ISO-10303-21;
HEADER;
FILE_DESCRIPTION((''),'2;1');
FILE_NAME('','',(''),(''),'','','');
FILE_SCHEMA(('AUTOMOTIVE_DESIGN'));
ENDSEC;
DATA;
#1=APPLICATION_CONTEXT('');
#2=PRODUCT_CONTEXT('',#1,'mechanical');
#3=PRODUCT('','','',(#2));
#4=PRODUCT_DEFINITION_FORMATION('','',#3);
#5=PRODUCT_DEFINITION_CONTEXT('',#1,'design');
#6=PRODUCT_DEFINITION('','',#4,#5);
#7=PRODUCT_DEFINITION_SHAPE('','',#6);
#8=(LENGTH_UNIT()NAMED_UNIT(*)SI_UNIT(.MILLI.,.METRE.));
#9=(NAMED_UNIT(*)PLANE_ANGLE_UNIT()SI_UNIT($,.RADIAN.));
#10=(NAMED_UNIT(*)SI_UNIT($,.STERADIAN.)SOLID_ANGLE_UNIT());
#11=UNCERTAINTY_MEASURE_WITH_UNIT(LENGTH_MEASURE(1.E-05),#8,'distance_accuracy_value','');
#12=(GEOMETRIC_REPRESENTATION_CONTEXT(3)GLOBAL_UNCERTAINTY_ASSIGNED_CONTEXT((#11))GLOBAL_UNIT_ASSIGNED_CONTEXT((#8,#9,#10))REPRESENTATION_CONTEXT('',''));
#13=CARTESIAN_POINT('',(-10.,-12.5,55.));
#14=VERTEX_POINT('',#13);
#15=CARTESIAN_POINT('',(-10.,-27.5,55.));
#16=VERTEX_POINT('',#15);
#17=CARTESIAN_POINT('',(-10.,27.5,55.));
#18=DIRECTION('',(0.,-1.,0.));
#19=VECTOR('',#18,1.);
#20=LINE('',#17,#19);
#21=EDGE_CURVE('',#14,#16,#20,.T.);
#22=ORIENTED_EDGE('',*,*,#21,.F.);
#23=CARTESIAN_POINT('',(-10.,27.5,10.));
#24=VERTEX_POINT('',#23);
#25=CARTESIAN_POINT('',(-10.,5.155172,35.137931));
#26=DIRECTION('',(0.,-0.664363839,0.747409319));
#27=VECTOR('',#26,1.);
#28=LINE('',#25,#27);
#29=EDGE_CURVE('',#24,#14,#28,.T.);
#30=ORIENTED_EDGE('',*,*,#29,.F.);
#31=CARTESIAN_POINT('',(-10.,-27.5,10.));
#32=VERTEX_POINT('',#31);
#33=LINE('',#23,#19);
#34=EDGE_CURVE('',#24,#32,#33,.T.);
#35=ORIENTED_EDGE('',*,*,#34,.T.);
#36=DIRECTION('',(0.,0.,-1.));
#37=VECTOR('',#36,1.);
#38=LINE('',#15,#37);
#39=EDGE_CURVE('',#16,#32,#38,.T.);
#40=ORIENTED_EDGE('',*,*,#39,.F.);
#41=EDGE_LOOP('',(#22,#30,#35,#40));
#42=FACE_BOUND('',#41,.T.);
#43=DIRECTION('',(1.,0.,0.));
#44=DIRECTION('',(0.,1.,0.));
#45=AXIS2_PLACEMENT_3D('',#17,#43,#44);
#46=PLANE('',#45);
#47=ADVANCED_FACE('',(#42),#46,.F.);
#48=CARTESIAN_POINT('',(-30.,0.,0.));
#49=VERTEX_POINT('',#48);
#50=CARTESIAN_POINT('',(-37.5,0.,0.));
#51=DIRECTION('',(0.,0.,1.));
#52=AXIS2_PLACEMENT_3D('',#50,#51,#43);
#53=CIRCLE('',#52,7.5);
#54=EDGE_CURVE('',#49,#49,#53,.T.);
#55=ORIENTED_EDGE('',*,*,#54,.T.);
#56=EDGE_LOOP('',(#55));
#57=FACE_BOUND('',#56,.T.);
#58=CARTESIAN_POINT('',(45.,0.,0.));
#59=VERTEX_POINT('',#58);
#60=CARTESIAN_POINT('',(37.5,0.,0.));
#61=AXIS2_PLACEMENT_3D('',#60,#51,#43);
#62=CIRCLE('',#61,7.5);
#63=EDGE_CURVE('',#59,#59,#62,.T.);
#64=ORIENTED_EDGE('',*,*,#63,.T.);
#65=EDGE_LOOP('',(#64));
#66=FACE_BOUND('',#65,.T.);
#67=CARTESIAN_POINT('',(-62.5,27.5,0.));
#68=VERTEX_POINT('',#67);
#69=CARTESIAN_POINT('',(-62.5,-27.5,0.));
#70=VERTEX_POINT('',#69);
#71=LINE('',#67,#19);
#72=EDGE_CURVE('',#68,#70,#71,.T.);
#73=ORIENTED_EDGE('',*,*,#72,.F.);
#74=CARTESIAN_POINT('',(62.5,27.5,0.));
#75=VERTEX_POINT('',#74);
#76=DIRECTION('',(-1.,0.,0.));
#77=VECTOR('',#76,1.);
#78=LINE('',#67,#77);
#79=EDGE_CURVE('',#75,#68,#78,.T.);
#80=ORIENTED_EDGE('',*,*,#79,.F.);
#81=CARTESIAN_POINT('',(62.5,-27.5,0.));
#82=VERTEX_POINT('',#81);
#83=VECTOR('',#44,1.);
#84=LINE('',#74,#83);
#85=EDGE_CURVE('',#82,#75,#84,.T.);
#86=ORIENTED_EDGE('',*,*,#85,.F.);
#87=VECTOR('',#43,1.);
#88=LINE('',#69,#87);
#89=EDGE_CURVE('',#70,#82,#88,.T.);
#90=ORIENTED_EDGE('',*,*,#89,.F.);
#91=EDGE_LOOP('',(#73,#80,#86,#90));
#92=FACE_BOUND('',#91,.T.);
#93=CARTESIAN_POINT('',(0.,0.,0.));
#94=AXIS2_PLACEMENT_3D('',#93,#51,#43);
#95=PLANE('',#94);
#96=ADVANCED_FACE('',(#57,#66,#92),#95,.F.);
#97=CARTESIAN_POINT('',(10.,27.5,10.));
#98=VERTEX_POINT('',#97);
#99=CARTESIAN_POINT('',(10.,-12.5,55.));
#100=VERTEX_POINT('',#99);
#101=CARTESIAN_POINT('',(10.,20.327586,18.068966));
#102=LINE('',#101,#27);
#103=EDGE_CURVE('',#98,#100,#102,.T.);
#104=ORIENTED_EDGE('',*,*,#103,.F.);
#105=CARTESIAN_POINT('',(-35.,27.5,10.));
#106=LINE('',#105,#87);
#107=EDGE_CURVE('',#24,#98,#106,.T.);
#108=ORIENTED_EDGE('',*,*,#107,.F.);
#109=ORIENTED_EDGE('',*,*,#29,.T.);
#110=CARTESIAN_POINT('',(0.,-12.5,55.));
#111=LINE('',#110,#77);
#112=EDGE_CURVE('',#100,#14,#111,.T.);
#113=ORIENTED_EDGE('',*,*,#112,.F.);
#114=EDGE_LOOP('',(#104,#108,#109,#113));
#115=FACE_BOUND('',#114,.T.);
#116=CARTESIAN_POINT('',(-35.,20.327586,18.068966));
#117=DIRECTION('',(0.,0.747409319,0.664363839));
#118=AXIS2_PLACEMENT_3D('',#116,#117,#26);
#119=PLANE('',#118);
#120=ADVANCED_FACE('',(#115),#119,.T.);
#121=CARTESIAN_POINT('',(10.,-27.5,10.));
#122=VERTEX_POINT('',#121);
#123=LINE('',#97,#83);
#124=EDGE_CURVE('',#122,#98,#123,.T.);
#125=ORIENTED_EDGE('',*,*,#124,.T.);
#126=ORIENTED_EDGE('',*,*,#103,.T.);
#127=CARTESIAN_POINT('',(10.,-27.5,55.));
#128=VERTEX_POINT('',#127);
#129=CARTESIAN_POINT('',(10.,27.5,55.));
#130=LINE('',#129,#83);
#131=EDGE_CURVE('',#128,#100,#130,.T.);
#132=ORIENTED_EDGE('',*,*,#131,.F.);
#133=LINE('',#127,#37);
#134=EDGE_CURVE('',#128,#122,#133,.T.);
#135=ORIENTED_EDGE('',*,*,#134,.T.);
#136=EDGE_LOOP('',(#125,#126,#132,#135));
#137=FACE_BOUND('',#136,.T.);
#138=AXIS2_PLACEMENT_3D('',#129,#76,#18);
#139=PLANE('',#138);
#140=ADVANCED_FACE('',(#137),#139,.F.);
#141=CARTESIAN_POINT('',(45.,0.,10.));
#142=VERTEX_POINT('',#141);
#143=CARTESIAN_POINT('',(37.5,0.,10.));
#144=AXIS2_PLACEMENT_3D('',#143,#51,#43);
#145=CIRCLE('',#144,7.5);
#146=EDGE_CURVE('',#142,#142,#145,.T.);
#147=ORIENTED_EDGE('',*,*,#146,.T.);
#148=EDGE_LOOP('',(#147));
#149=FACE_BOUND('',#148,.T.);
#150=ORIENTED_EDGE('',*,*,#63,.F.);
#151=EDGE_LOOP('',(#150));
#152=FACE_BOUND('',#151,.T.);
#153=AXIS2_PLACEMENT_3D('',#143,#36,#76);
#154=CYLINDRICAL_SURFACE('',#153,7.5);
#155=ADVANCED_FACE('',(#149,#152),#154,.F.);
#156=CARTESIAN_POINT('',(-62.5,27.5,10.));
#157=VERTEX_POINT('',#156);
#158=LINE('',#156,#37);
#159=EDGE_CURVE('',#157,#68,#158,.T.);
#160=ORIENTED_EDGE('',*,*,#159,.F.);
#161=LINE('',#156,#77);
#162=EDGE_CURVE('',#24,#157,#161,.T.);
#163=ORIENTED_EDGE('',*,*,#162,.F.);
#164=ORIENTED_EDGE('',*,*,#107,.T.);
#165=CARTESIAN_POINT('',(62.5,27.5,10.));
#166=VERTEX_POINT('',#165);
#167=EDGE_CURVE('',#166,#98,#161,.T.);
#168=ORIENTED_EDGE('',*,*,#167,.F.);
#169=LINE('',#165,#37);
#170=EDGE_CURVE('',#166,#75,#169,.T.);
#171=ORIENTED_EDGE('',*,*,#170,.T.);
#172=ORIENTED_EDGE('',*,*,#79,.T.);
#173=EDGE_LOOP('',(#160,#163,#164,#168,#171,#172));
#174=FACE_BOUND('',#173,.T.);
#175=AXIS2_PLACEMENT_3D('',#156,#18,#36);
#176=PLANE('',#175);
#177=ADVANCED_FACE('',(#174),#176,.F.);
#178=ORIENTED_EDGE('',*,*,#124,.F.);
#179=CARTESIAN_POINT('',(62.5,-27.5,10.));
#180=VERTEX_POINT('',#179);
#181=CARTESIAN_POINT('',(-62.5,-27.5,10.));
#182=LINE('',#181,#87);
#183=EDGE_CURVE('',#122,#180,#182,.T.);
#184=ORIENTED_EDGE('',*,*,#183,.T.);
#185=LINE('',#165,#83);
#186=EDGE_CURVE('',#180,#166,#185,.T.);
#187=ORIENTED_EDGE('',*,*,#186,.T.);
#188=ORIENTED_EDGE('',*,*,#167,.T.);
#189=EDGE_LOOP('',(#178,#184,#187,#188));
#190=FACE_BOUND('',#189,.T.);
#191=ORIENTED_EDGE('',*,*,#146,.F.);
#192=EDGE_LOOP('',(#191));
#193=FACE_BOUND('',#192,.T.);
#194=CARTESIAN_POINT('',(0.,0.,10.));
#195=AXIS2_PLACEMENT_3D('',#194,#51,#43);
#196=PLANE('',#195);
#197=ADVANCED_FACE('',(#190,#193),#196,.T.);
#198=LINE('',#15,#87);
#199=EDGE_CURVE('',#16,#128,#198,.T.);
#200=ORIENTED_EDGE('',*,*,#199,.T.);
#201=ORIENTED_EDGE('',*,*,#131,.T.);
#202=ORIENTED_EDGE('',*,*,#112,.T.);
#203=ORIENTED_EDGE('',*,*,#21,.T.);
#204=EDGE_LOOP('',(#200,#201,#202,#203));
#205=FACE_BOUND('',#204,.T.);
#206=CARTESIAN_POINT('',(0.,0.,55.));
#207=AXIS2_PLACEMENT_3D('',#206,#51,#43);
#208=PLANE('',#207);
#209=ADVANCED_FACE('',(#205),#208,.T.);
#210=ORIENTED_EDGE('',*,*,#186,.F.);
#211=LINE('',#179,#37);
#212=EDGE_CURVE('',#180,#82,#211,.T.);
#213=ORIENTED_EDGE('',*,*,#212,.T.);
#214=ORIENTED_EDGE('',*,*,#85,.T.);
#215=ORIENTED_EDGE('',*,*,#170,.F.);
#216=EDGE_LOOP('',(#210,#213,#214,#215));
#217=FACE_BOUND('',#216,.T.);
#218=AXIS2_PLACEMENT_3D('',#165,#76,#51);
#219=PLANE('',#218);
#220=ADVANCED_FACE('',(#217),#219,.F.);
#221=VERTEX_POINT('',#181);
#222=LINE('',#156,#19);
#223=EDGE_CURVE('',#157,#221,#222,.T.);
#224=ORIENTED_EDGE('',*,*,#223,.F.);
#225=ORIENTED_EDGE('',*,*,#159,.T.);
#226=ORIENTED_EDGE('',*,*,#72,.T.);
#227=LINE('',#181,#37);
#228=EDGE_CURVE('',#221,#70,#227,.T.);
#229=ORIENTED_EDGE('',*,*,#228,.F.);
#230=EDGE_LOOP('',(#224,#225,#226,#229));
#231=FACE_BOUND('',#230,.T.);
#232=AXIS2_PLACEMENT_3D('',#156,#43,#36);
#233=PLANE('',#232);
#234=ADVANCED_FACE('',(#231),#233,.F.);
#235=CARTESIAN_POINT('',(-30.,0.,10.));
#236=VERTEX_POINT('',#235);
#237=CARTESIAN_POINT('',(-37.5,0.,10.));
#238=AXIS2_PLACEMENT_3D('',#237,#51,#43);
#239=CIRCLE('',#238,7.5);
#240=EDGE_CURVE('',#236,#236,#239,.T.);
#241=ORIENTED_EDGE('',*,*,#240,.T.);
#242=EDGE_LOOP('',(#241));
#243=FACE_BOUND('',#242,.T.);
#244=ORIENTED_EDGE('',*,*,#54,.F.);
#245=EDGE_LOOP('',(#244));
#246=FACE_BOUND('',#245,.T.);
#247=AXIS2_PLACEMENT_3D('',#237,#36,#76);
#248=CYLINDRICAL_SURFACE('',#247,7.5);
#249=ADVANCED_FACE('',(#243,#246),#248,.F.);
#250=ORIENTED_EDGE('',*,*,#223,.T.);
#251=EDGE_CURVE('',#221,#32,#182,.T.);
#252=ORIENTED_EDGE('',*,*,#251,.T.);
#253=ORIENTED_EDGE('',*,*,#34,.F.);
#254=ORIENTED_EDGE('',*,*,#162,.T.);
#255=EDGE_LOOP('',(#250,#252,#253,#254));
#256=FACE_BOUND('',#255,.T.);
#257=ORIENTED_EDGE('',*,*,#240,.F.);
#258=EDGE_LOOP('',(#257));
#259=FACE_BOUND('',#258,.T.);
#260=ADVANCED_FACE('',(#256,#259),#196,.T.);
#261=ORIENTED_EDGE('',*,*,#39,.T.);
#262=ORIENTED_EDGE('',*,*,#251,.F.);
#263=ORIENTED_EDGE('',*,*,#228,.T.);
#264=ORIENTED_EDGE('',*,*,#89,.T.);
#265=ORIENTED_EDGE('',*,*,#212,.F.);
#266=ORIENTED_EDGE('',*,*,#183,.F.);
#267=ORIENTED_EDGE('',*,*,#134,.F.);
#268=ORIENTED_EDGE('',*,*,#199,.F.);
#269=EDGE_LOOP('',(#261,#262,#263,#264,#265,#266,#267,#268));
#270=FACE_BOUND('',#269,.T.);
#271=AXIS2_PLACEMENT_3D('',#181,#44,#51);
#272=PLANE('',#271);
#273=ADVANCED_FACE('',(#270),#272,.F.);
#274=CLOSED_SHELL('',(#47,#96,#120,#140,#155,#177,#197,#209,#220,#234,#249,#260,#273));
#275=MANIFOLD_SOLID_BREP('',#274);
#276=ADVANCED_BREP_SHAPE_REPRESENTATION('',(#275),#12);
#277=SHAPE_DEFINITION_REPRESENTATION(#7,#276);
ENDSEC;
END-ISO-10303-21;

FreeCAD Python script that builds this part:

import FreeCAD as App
import Part
import Sketcher
from FreeCAD import Vector


def add_polygon(sketch, points):
    """Adds a closed chain of lines whose ends are joined by coincident constraints."""
    first, n = sketch.GeometryCount, len(points)
    for a, b in zip(points, points[1:] + points[:1]):
        sketch.addGeometry(Part.LineSegment(App.Vector(*a, 0), App.Vector(*b, 0)), False)
    for i in range(n):
        sketch.addConstraint(Sketcher.Constraint("Coincident", first + i, 2, first + (i + 1) % n, 1))

doc = App.newDocument("Part")
params = doc.addObject("Spreadsheet::Sheet", "Params")
for row, (alias, value) in enumerate([
    ("sketch1_diameter", "15 mm"),
    ("sketch1_width", "125 mm"),
    ("sketch1_height", "55 mm"),
    ("pad1_length", "10 mm"),
    ("sketch2_width", "20 mm"),
    ("sketch2_height", "55 mm"),
    ("pad2_length", "45 mm"),
    ("sketch3_width", "40 mm"),
    ("sketch3_height", "45 mm"),
    ("pocket1_length", "45 mm"),
], start=1):
    params.set(f"A{row}", alias)
    params.set(f"B{row}", "=" + value)
    params.setAlias(f"B{row}", alias)

body = doc.addObject("PartDesign::Body", "Body")

sketch1 = body.newObject("Sketcher::SketchObject", "Sketch")
sketch1.AttachmentSupport = (doc.getObject("XY_Plane"), [""])
sketch1.MapMode = "FlatFace"
add_polygon(sketch1, [(-62, 28), (-62, -28), (62, -28), (62, 28)])
sketch1.addGeometry(Part.Circle(Vector(-38, 0, 0), Vector(0, 0, 1), 8), False)
sketch1.addGeometry(Part.Circle(Vector(38, 0, 0), Vector(0, 0, 1), 8), False)
sketch1.addConstraint(Sketcher.Constraint("Vertical", 0))
sketch1.addConstraint(Sketcher.Constraint("Horizontal", 1))
sketch1.addConstraint(Sketcher.Constraint("Vertical", 2))
sketch1.addConstraint(Sketcher.Constraint("Horizontal", 3))
sketch1.addConstraint(Sketcher.Constraint("Equal", 4, 5))
sketch1.addConstraint(Sketcher.Constraint("Symmetric", 4, 3, 5, 3, -1, 1))
sketch1.addConstraint(Sketcher.Constraint("Symmetric", 0, 2, 2, 2, -1, 1))
sketch1.addConstraint(Sketcher.Constraint("PointOnObject", 4, 3, -1))
sketch1.addConstraint(Sketcher.Constraint("Diameter", 4, 15.0))
sketch1.addConstraint(Sketcher.Constraint("DistanceX", 1, 1, 1, 2, 125.0))
sketch1.addConstraint(Sketcher.Constraint("DistanceY", 0, 2, 0, 1, 55.0))
sketch1.addConstraint(Sketcher.Constraint("DistanceX", 4, 3, 5, 3, 75.0))
sketch1.setExpression("Constraints[12]", "Params.sketch1_diameter")
sketch1.setExpression("Constraints[13]", "Params.sketch1_width")
sketch1.setExpression("Constraints[14]", "Params.sketch1_height")
pad1 = body.newObject("PartDesign::Pad", "Pad")
pad1.Profile = sketch1
pad1.setExpression("Length", "Params.pad1_length")

sketch2 = body.newObject("Sketcher::SketchObject", "Sketch001")
sketch2.AttachmentSupport = (doc.getObject("XY_Plane"), [""])
sketch2.MapMode = "FlatFace"
sketch2.AttachmentOffset = App.Placement(Vector(0, 0, 10), App.Rotation())
add_polygon(sketch2, [(-10, 28), (-10, -28), (10, -28), (10, 28)])
sketch2.addConstraint(Sketcher.Constraint("Vertical", 0))
sketch2.addConstraint(Sketcher.Constraint("Horizontal", 1))
sketch2.addConstraint(Sketcher.Constraint("Vertical", 2))
sketch2.addConstraint(Sketcher.Constraint("Horizontal", 3))
sketch2.addConstraint(Sketcher.Constraint("Symmetric", 0, 2, 2, 2, -1, 1))
sketch2.addConstraint(Sketcher.Constraint("DistanceX", 1, 1, 1, 2, 20.0))
sketch2.addConstraint(Sketcher.Constraint("DistanceY", 0, 2, 0, 1, 55.0))
sketch2.setExpression("Constraints[9]", "Params.sketch2_width")
sketch2.setExpression("Constraints[10]", "Params.sketch2_height")
pad2 = body.newObject("PartDesign::Pad", "Pad001")
pad2.Profile = sketch2
pad2.setExpression("Length", "Params.pad2_length")

sketch3 = body.newObject("Sketcher::SketchObject", "Sketch002")
sketch3.AttachmentSupport = (doc.getObject("YZ_Plane"), [""])
sketch3.MapMode = "FlatFace"
sketch3.AttachmentOffset = App.Placement(Vector(0, 0, 10), App.Rotation())
add_polygon(sketch3, [(-12, 55), (28, 10), (28, 55)])
sketch3.addConstraint(Sketcher.Constraint("Vertical", 1))
sketch3.addConstraint(Sketcher.Constraint("Horizontal", 2))
sketch3.addConstraint(Sketcher.Constraint("DistanceX", 2, 2, 2, 1, 40.0))
sketch3.addConstraint(Sketcher.Constraint("DistanceY", 1, 1, 1, 2, 45.0))
sketch3.addConstraint(Sketcher.Constraint("DistanceY", -1, 1, 0, 2, 10.0))
sketch3.addConstraint(Sketcher.Constraint("DistanceX", -1, 1, 0, 2, 27.5))
sketch3.setExpression("Constraints[5]", "Params.sketch3_width")
sketch3.setExpression("Constraints[6]", "Params.sketch3_height")
pocket1 = body.newObject("PartDesign::Pocket", "Pocket")
pocket1.Profile = sketch3
pocket1.setExpression("Length", "Params.pocket1_length")

doc.recompute()
